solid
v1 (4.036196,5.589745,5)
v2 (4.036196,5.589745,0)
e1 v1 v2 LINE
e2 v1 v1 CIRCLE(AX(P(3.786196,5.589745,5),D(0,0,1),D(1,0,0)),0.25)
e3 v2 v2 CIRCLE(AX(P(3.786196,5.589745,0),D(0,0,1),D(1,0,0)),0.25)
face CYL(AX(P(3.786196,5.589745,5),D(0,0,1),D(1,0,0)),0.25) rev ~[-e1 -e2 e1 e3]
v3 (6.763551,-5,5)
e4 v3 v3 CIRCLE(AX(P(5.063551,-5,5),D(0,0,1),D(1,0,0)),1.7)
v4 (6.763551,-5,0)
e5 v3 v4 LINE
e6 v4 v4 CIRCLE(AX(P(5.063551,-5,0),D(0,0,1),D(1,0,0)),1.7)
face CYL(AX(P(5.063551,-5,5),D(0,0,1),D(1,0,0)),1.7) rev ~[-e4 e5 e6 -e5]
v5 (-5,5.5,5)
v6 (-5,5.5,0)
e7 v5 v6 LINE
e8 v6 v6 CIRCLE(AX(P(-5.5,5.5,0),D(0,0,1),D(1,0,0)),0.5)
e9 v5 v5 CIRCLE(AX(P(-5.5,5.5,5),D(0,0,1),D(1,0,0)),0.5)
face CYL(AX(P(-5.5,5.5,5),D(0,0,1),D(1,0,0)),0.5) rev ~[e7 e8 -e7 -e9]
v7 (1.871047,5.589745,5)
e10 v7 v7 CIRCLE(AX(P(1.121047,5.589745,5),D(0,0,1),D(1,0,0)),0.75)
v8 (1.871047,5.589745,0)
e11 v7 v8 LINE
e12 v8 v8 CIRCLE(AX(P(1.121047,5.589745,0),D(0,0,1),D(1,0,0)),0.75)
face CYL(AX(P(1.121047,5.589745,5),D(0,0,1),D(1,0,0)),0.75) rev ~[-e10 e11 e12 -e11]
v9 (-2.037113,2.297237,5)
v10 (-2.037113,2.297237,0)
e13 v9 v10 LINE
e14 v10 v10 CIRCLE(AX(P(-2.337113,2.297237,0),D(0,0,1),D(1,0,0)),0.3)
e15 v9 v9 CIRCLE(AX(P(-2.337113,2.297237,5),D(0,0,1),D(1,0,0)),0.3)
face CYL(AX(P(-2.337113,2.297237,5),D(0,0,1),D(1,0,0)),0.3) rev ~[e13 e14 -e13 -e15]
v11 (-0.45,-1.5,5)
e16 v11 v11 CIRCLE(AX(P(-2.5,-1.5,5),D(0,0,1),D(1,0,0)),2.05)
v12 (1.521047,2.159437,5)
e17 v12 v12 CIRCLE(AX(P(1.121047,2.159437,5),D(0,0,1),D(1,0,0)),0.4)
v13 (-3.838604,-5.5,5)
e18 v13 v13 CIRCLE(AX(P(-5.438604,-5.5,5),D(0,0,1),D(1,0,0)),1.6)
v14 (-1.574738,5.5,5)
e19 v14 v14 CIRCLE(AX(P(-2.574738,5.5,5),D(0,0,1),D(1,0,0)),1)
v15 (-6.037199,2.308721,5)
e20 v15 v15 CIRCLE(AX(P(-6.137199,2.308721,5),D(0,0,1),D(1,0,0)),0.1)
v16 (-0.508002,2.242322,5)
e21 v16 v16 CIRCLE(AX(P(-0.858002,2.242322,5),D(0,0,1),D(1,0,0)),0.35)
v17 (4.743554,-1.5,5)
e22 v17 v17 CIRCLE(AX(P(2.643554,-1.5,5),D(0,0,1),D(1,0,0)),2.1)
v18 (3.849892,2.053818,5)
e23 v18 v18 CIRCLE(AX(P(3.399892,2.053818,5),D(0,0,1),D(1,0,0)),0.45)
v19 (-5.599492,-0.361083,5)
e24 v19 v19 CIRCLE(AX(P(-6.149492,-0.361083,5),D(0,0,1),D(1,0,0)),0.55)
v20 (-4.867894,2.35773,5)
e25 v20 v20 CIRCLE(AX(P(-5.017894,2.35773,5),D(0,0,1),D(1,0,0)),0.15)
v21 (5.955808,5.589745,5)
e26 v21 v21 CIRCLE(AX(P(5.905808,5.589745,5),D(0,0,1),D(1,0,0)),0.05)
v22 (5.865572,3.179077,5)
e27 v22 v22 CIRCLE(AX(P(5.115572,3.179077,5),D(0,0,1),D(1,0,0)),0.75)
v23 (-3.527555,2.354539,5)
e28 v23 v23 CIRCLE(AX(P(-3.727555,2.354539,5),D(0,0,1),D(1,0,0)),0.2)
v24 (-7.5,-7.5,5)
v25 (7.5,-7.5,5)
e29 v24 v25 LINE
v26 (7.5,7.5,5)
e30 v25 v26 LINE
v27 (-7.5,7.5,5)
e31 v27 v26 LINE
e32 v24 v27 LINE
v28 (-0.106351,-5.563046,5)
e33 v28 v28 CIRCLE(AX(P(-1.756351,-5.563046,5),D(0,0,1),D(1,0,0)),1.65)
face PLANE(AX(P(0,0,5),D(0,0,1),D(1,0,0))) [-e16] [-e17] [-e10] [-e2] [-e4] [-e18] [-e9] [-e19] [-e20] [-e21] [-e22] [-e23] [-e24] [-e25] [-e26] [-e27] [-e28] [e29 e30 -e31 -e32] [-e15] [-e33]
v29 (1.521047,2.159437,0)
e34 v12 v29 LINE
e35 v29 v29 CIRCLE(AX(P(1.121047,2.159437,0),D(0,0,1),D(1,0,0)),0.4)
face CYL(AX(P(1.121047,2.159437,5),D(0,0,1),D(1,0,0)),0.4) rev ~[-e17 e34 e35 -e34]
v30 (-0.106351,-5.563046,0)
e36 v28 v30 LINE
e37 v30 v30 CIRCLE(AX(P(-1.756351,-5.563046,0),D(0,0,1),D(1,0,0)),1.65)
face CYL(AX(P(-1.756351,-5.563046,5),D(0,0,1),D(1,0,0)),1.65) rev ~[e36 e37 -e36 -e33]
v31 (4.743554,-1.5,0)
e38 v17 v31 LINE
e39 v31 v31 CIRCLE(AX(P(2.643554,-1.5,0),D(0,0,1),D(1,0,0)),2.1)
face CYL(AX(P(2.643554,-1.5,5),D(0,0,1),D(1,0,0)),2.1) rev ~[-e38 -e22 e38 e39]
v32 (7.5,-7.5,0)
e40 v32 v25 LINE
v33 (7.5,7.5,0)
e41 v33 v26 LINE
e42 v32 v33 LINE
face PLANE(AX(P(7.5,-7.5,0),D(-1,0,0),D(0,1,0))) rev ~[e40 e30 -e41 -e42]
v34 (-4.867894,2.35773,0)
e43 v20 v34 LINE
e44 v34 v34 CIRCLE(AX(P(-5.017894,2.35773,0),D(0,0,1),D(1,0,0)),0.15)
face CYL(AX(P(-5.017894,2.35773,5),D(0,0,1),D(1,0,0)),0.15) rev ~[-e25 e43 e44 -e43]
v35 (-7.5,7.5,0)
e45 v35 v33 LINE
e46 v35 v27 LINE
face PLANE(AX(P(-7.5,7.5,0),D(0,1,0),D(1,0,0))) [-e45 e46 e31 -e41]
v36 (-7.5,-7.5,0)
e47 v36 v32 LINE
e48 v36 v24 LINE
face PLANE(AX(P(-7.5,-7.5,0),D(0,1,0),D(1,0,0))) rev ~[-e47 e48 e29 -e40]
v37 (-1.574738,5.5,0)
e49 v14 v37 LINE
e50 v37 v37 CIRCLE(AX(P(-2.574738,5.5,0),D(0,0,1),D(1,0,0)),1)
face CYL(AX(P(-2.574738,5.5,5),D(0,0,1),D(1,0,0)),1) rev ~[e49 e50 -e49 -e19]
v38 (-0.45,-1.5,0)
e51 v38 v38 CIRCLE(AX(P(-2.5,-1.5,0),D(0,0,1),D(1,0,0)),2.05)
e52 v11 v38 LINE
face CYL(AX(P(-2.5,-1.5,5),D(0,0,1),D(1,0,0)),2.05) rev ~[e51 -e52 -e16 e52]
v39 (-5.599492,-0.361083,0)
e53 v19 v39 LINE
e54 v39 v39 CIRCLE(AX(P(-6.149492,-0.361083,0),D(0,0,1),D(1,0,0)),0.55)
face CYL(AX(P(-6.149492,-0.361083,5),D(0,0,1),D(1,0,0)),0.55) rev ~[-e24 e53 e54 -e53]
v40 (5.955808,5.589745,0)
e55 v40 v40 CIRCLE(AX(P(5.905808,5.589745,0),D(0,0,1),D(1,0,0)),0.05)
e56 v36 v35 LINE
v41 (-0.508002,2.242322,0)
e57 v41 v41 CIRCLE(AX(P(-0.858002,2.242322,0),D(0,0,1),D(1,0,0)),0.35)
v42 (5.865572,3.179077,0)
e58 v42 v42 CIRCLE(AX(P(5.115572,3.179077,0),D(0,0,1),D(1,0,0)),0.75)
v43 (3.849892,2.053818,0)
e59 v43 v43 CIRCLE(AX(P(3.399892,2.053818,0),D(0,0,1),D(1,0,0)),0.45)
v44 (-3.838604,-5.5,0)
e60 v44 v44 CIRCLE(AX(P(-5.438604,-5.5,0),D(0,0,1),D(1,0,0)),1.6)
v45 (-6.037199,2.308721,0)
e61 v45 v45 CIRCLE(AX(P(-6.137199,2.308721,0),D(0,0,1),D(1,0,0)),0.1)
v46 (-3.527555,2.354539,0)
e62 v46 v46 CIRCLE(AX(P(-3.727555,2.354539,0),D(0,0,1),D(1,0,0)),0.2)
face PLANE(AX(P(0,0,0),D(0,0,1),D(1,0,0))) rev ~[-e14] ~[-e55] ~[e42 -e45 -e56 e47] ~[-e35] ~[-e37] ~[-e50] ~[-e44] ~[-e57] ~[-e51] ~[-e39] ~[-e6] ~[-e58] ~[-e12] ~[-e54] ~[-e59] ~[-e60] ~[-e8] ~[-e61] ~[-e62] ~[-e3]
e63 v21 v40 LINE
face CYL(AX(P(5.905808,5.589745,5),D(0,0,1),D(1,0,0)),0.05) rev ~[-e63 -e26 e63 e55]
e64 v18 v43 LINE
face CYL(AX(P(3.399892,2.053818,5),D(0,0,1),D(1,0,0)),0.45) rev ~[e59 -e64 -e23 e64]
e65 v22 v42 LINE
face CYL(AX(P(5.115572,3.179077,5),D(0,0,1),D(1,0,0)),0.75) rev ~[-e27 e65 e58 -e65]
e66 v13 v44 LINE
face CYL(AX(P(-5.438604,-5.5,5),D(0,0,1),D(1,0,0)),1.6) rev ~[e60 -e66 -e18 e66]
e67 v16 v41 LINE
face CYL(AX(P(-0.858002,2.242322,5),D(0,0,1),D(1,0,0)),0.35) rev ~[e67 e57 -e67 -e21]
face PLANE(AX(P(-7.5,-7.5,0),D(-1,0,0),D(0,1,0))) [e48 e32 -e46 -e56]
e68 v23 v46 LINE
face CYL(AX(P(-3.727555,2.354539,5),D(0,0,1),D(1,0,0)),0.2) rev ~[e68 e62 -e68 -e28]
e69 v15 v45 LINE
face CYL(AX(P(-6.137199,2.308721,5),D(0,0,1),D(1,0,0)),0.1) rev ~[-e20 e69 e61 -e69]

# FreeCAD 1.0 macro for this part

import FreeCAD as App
import Part
import Sketcher
from FreeCAD import Vector

doc = App.newDocument("Part")
params = doc.addObject("Spreadsheet::Sheet", "Params")
for row, (alias, value) in enumerate([
    ("sketch1_width", "15 mm"),
    ("pad1_length", "5 mm"),
    ("sketch2_diameter", "1 mm"),
    ("sketch2_diameter2", "2 mm"),
    ("sketch2_diameter3", "1.5 mm"),
    ("sketch2_diameter4", "0.5 mm"),
    ("sketch2_diameter5", "0.1 mm"),
    ("pocket1_length", "25 mm"),
], start=1):
    params.set(f"A{row}", alias)
    params.set(f"B{row}", "=" + value)
    params.setAlias(f"B{row}", alias)

body = doc.addObject("PartDesign::Body", "Body")

# Sketch on XY plane
sketch1 = body.newObject("Sketcher::SketchObject", "Sketch")
sketch1.AttachmentSupport = (doc.getObject("XY_Plane"), [""])
sketch1.MapMode = "FlatFace"
sketch1.addGeometry([
    Part.LineSegment(Vector(-8, 8, 0), Vector(-8, -8, 0)),
    Part.LineSegment(Vector(-8, -8, 0), Vector(8, -8, 0)),
    Part.LineSegment(Vector(8, -8, 0), Vector(8, 8, 0)),
    Part.LineSegment(Vector(8, 8, 0), Vector(-8, 8, 0)),
], False)
sketch1.addConstraint([
    Sketcher.Constraint("Coincident", 0, 2, 1, 1),
    Sketcher.Constraint("Coincident", 1, 2, 2, 1),
    Sketcher.Constraint("Coincident", 2, 2, 3, 1),
    Sketcher.Constraint("Coincident", 3, 2, 0, 1),
    Sketcher.Constraint("Vertical", 0),
    Sketcher.Constraint("Horizontal", 1),
    Sketcher.Constraint("Vertical", 2),
    Sketcher.Constraint("Horizontal", 3),
    Sketcher.Constraint("Symmetric", 0, 2, 2, 2, -1, 1),
    Sketcher.Constraint("Equal", 3, 0),
    Sketcher.Constraint("DistanceX", 1, 1, 1, 2, 15.0),
])
sketch1.setExpression("Constraints[10]", "Params.sketch1_width")
pad1 = body.newObject("PartDesign::Pad", "Pad")
pad1.Profile = sketch1
pad1.setExpression("Length", "Params.pad1_length")

# Sketch on XY plane
sketch2 = body.newObject("Sketcher::SketchObject", "Sketch001")
sketch2.AttachmentSupport = (doc.getObject("XY_Plane"), [""])
sketch2.MapMode = "FlatFace"
sketch2.AttachmentOffset = App.Placement(Vector(0, 0, 5), App.Rotation())
sketch2.addGeometry([
    Part.Circle(Vector(-5.5, 5.5, 0), Vector(0, 0, 1), 0.5),  # 0
    Part.Circle(Vector(-2.57, 5.5, 0), Vector(0, 0, 1), 1),  # 1
    Part.Circle(Vector(1.12, 5.59, 0), Vector(0, 0, 1), 0.75),  # 2
    Part.Circle(Vector(3.79, 5.59, 0), Vector(0, 0, 1), 0.25),  # 3
    Part.Circle(Vector(5.91, 5.59, 0), Vector(0, 0, 1), 0.05),  # 4
    Part.Circle(Vector(-6.14, 2.31, 0), Vector(0, 0, 1), 0.1),  # 5
    Part.Circle(Vector(-5.02, 2.36, 0), Vector(0, 0, 1), 0.15),  # 6
    Part.Circle(Vector(-3.73, 2.35, 0), Vector(0, 0, 1), 0.2),  # 7
    Part.Circle(Vector(-2.34, 2.3, 0), Vector(0, 0, 1), 0.3),  # 8
    Part.Circle(Vector(-0.86, 2.24, 0), Vector(0, 0, 1), 0.35),  # 9
    Part.Circle(Vector(1.12, 2.16, 0), Vector(0, 0, 1), 0.4),  # 10
    Part.Circle(Vector(3.4, 2.05, 0), Vector(0, 0, 1), 0.45),  # 11
    Part.Circle(Vector(-6.15, -0.36, 0), Vector(0, 0, 1), 0.55),  # 12
    Part.Circle(Vector(-2.5, -1.5, 0), Vector(0, 0, 1), 2.05),  # 13
    Part.Circle(Vector(2.64, -1.5, 0), Vector(0, 0, 1), 2.1),  # 14
    Part.Circle(Vector(-5.44, -5.5, 0), Vector(0, 0, 1), 1.6),  # 15
    Part.Circle(Vector(-1.76, -5.56, 0), Vector(0, 0, 1), 1.65),  # 16
    Part.Circle(Vector(5.06, -5, 0), Vector(0, 0, 1), 1.7),  # 17
    Part.Circle(Vector(5.12, 3.18, 0), Vector(0, 0, 1), 0.75),  # 18
], False)
sketch2.addConstraint([
    Sketcher.Constraint("Equal", 2, 18),
    Sketcher.Constraint("Horizontal", 0, 3, 1, 3),
    Sketcher.Constraint("Horizontal", 2, 3, 3, 3),
    Sketcher.Constraint("Horizontal", 3, 3, 4, 3),
    Sketcher.Constraint("Horizontal", 13, 3, 14, 3),
    Sketcher.Constraint("Vertical", 2, 3, 10, 3),
    Sketcher.Constraint("Diameter", 0, 1.0),
    Sketcher.Constraint("Diameter", 1, 2.0),
    Sketcher.Constraint("Diameter", 2, 1.5),
    Sketcher.Constraint("Diameter", 3, 0.5),
    Sketcher.Constraint("Diameter", 4, 0.1),
    Sketcher.Constraint("Diameter", 5, 0.2),
    Sketcher.Constraint("Diameter", 6, 0.3),
    Sketcher.Constraint("Diameter", 7, 0.4),
    Sketcher.Constraint("Diameter", 8, 0.6),
    Sketcher.Constraint("Diameter", 9, 0.7),
    Sketcher.Constraint("Diameter", 10, 0.8),
    Sketcher.Constraint("Diameter", 11, 0.9),
    Sketcher.Constraint("Diameter", 12, 1.1),
    Sketcher.Constraint("Diameter", 13, 4.1),
    Sketcher.Constraint("Diameter", 14, 4.2),
    Sketcher.Constraint("Diameter", 15, 3.2),
    Sketcher.Constraint("Diameter", 16, 3.3),
    Sketcher.Constraint("Diameter", 17, 3.4),
    Sketcher.Constraint("DistanceY", 17, 3, -1, 1, 5.0),
    Sketcher.Constraint("DistanceY", 15, 3, 13, 3, 4.0),
    Sketcher.Constraint("DistanceX", 0, 3, -1, 1, 5.5),
    Sketcher.Constraint("DistanceY", -1, 1, 0, 3, 5.5),
    Sketcher.Constraint("DistanceX", 13, 3, -1, 1, 2.5),
    Sketcher.Constraint("DistanceY", 13, 3, -1, 1, 1.5),
    Sketcher.Constraint("DistanceX", 13, 3, 9, 3, 1.641998),
    Sketcher.Constraint("DistanceX", 5, 3, -1, 1, 6.137199),
    Sketcher.Constraint("DistanceX", 7, 3, 2, 3, 4.848602),
    Sketcher.Constraint("DistanceY", 8, 3, 7, 3, 0.057302),
    Sketcher.Constraint("DistanceY", 10, 3, 8, 3, 0.1378),
    Sketcher.Constraint("DistanceX", 12, 3, 6, 3, 1.131598),
    Sketcher.Constraint("DistanceX", 1, 3, -1, 1, 2.574738),
    Sketcher.Constraint("DistanceX", -1, 1, 4, 3, 5.905808),
    Sketcher.Constraint("DistanceY", -1, 1, 5, 3, 2.308721),
    Sketcher.Constraint("DistanceY", -1, 1, 6, 3, 2.35773),
    Sketcher.Constraint("DistanceY", -1, 1, 7, 3, 2.354539),
    Sketcher.Constraint("DistanceX", -1, 1, 11, 3, 3.399892),
    Sketcher.Constraint("DistanceY", -1, 1, 11, 3, 2.053818),
    Sketcher.Constraint("DistanceX", 16, 3, -1, 1, 1.756351),
    Sketcher.Constraint("DistanceX", -1, 1, 17, 3, 5.063551),
    Sketcher.Constraint("DistanceX", 2, 3, 3, 3, 2.665149),
    Sketcher.Constraint("DistanceX", 2, 3, 4, 3, 4.784761),
    Sketcher.Constraint("DistanceX", 6, 3, 2, 3, 6.138941),
    Sketcher.Constraint("DistanceX", 6, 3, 8, 3, 2.680781),
    Sketcher.Constraint("DistanceY", 12, 3, 7, 3, 2.715622),
    Sketcher.Constraint("DistanceX", 12, 3, 15, 3, 0.710888),
    Sketcher.Constraint("DistanceX", 11, 3, 18, 3, 1.71568),
    Sketcher.Constraint("DistanceY", 11, 3, 18, 3, 1.125259),
    Sketcher.Constraint("DistanceY", -1, 1, 2, 3, 5.589745),
    Sketcher.Constraint("DistanceY", -1, 1, 9, 3, 2.242322),
    Sketcher.Constraint("DistanceX", -1, 1, 14, 3, 2.643554),
    Sketcher.Constraint("DistanceY", 16, 3, -1, 1, 5.563046),
])
sketch2.setExpression("Constraints[6]", "Params.sketch2_diameter")
sketch2.setExpression("Constraints[7]", "Params.sketch2_diameter2")
sketch2.setExpression("Constraints[8]", "Params.sketch2_diameter3")
sketch2.setExpression("Constraints[9]", "Params.sketch2_diameter4")
sketch2.setExpression("Constraints[10]", "Params.sketch2_diameter5")
pocket1 = body.newObject("PartDesign::Pocket", "Pocket")
pocket1.Profile = sketch2
pocket1.setExpression("Length", "Params.pocket1_length")

doc.recompute()
